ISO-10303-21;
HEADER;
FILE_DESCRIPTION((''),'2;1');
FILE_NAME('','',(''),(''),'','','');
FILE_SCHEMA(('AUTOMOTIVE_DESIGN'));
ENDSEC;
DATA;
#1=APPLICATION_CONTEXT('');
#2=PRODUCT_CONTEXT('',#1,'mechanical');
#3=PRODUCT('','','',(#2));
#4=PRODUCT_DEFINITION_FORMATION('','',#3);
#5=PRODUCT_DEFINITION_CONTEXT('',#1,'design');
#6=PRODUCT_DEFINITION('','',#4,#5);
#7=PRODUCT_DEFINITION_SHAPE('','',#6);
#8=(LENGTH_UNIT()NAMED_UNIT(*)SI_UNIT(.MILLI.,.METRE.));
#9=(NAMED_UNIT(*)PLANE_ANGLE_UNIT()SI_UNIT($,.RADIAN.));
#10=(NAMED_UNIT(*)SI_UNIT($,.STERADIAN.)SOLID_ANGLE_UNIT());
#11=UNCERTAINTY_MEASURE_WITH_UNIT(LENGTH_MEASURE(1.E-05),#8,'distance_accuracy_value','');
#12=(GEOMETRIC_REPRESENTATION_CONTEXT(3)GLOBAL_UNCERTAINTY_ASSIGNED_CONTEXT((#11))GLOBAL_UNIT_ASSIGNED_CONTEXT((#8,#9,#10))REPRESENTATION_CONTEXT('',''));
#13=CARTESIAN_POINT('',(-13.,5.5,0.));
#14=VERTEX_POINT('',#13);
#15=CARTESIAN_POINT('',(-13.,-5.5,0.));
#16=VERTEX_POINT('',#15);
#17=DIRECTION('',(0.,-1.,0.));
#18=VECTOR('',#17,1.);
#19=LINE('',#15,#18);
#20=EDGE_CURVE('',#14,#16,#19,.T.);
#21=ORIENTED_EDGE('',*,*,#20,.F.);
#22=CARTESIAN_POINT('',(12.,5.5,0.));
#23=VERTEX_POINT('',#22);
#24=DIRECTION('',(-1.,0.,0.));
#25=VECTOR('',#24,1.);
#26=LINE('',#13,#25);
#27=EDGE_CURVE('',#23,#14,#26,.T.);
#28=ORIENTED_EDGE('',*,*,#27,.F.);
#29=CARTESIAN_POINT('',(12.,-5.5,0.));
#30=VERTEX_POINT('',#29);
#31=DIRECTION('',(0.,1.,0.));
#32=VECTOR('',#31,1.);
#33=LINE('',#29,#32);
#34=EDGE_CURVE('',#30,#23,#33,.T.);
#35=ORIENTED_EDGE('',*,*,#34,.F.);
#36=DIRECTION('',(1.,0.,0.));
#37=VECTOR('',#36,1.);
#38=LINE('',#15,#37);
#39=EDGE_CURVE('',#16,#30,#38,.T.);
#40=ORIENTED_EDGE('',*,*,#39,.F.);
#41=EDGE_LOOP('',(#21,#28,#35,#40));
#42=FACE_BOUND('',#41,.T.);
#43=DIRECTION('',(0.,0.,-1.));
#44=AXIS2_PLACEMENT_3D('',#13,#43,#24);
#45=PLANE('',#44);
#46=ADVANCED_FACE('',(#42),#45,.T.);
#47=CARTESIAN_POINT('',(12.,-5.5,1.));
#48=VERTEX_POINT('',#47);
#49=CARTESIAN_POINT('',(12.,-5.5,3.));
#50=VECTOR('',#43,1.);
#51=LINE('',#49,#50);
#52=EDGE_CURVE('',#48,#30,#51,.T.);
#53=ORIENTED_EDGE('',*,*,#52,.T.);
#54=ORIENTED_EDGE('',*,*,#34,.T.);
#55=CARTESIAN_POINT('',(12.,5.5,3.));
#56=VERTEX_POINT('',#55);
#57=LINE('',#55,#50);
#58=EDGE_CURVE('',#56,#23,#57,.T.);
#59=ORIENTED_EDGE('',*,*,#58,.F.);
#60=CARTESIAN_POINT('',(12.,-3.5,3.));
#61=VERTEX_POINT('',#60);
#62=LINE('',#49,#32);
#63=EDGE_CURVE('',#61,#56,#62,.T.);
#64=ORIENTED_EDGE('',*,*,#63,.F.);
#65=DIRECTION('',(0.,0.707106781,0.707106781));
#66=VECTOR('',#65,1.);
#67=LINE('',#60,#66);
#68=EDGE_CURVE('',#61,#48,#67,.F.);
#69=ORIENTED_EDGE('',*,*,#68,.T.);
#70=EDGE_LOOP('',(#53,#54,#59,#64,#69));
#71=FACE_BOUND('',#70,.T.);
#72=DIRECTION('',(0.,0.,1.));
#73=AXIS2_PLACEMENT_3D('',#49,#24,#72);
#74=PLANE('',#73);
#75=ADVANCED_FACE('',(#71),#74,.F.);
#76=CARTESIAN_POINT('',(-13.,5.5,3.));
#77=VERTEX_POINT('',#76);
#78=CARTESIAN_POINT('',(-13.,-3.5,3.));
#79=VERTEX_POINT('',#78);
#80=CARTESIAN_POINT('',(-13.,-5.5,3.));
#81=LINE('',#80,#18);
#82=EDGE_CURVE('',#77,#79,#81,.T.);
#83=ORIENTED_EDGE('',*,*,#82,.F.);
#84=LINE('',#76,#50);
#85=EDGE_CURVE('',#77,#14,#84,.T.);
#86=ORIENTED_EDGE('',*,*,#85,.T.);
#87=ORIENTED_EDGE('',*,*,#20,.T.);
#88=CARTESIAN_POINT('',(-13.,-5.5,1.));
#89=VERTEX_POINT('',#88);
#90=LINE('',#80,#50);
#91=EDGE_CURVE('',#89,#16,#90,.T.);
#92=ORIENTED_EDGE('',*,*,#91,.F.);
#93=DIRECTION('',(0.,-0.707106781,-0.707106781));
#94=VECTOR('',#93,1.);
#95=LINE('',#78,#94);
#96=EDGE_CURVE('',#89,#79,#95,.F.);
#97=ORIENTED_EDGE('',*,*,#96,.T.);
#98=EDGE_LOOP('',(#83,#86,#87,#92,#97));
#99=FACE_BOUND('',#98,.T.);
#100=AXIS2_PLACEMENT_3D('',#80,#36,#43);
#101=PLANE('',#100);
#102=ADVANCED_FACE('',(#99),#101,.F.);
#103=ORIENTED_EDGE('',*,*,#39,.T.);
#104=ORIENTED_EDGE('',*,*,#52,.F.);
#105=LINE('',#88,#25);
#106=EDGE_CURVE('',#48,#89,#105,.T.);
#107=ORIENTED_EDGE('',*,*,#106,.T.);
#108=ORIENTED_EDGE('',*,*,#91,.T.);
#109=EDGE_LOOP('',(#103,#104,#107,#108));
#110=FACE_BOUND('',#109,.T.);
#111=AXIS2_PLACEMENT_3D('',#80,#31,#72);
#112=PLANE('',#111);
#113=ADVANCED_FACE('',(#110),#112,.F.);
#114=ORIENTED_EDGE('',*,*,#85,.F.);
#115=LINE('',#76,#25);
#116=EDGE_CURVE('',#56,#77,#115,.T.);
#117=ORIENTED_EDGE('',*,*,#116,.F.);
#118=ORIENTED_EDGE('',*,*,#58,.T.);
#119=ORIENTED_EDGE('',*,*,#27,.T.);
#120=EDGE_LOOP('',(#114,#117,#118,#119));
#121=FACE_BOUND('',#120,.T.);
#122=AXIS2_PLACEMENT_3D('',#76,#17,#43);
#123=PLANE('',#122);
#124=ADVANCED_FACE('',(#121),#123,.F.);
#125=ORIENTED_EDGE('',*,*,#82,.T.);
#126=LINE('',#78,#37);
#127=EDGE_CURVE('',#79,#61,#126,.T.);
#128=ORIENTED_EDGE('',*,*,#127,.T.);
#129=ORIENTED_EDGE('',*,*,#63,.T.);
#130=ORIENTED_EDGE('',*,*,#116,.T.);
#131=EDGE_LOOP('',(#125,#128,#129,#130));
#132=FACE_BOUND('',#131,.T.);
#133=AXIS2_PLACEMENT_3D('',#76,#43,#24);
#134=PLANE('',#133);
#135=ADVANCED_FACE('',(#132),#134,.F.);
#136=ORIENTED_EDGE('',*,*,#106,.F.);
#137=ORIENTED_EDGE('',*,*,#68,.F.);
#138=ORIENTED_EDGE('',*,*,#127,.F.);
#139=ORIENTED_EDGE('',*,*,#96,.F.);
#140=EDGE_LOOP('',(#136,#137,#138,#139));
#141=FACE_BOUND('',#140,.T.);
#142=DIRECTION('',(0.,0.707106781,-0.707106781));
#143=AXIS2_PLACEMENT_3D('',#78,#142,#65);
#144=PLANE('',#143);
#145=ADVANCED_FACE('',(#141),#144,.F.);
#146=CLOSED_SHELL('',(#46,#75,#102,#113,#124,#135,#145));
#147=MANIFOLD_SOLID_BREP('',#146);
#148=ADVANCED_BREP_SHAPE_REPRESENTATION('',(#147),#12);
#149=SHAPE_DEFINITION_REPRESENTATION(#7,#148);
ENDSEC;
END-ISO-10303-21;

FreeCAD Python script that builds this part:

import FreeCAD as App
import Part
import Sketcher
from FreeCAD import Vector
Q = App.Units.Quantity


def edges_at(feature, points):
    """Names of the edges that pass closest to the given points."""
    edges = feature.Shape.Edges
    near = lambda p: min(range(len(edges)), key=lambda i: edges[i].distToShape(Part.Vertex(*p))[0])
    return sorted({f"Edge{near(p) + 1}" for p in points})


def add_polygon(sketch, points):
    """Adds a closed chain of lines whose ends are joined by coincident constraints."""
    first, n = sketch.GeometryCount, len(points)
    for a, b in zip(points, points[1:] + points[:1]):
        sketch.addGeometry(Part.LineSegment(App.Vector(*a, 0), App.Vector(*b, 0)), False)
    for i in range(n):
        sketch.addConstraint(Sketcher.Constraint("Coincident", first + i, 2, first + (i + 1) % n, 1))

doc = App.newDocument("Part")
params = doc.addObject("Spreadsheet::Sheet", "Params")
for row, (alias, value) in enumerate([
    ("sketch1_width", "25 mm"),
    ("sketch1_height", "11 mm"),
    ("pad1_length", "3 mm"),
    ("chamfer_size", "2 mm"),
], start=1):
    params.set(f"A{row}", alias)
    params.set(f"B{row}", "=" + value)
    params.setAlias(f"B{row}", alias)

body = doc.addObject("PartDesign::Body", "Body")

# Sketch on XY plane
sketch1 = body.newObject("Sketcher::SketchObject", "Sketch")
sketch1.AttachmentSupport = (doc.getObject("XY_Plane"), [""])
sketch1.MapMode = "FlatFace"
add_polygon(sketch1, [(-13, 6), (-13, -6), (12, -6), (12, 6)])  # lines 0-3
sketch1.addConstraint(Sketcher.Constraint("Vertical", 0))
sketch1.addConstraint(Sketcher.Constraint("Horizontal", 1))
sketch1.addConstraint(Sketcher.Constraint("Vertical", 2))
sketch1.addConstraint(Sketcher.Constraint("Horizontal", 3))
sketch1.addConstraint(Sketcher.Constraint("DistanceX", 1, 1, 1, 2, Q("25 mm")))
sketch1.addConstraint(Sketcher.Constraint("DistanceY", 0, 2, 0, 1, Q("11 mm")))
sketch1.addConstraint(Sketcher.Constraint("DistanceX", 0, 2, -1, 1, Q("13 mm")))
sketch1.addConstraint(Sketcher.Constraint("DistanceY", 0, 2, -1, 1, Q("5.5 mm")))
sketch1.setExpression("Constraints[8]", "Params.sketch1_width")
sketch1.setExpression("Constraints[9]", "Params.sketch1_height")
pad1 = body.newObject("PartDesign::Pad", "Pad")
pad1.Profile = sketch1
pad1.setExpression("Length", "Params.pad1_length")
doc.recompute()

chamfer = body.newObject("PartDesign::Chamfer", "Chamfer")
chamfer.Base = (pad1, edges_at(pad1, [(-0.5, -5.5, 3)]))
chamfer.setExpression("Size", "Params.chamfer_size")

doc.recompute()
